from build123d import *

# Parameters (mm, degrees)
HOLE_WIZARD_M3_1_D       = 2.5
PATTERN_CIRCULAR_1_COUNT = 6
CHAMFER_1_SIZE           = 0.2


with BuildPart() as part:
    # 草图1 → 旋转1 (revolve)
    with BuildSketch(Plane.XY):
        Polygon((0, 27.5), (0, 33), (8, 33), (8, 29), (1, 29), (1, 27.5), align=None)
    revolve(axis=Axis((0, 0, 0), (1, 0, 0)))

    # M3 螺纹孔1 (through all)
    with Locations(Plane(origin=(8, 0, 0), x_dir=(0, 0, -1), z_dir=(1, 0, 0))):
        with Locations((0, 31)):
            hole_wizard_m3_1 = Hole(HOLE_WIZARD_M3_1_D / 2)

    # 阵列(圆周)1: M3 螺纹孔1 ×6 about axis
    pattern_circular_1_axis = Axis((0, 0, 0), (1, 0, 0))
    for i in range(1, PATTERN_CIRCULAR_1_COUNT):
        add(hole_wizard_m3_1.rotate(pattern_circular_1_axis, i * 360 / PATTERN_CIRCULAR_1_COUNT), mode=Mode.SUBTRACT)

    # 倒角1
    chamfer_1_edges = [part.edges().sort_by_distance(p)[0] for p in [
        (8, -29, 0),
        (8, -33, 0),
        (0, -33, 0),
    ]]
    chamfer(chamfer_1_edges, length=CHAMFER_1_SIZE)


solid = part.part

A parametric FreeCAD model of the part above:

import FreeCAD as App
import Part
import Sketcher
Q = App.Units.Quantity


def edges_at(feature, points):
    """Names of the edges that pass closest to the given points."""
    edges = feature.Shape.Edges
    near = lambda p: min(range(len(edges)), key=lambda i: edges[i].distToShape(Part.Vertex(*p))[0])
    return sorted({f"Edge{near(p) + 1}" for p in points})


def add_polygon(sketch, points):
    """Adds a closed chain of lines whose ends are joined by coincident constraints."""
    first, n = sketch.GeometryCount, len(points)
    for a, b in zip(points, points[1:] + points[:1]):
        sketch.addGeometry(Part.LineSegment(App.Vector(*a, 0), App.Vector(*b, 0)), False)
    for i in range(n):
        sketch.addConstraint(Sketcher.Constraint("Coincident", first + i, 2, first + (i + 1) % n, 1))

doc = App.newDocument("Part")
params = doc.addObject("Spreadsheet::Sheet", "Params")
for row, (alias, value) in enumerate([
    ("sketch1_width", "1 mm"),
    ("sketch1_width2", "7 mm"),
    ("sketch1_height", "4 mm"),
    ("sketch1_height2", "5.5 mm"),
    ("revolution_angle", "360 deg"),
    ("sketch2_diameter", "2.5 mm"),
    ("hole_diameter", "2.5 mm"),
    ("chamfer_size", "0.2 mm"),
], start=1):
    params.set(f"A{row}", alias)
    params.set(f"B{row}", "=" + value)
    params.setAlias(f"B{row}", alias)

body = doc.addObject("PartDesign::Body", "Body")

sketch1 = body.newObject("Sketcher::SketchObject", "Sketch")
sketch1.AttachmentSupport = (doc.getObject("XY_Plane"), [""])
sketch1.MapMode = "FlatFace"
add_polygon(sketch1, [(0, 33), (0, 27.5), (1, 27.5), (1, 29), (8, 29), (8, 33)])
sketch1.addConstraint([
    Sketcher.Constraint("Vertical", 0),
    Sketcher.Constraint("Horizontal", 1),
    Sketcher.Constraint("Vertical", 2),
    Sketcher.Constraint("Horizontal", 3),
    Sketcher.Constraint("Vertical", 4),
    Sketcher.Constraint("Horizontal", 5),
    Sketcher.Constraint("PointOnObject", 0, 2, -2),
    Sketcher.Constraint("DistanceX", 1, 1, 1, 2, Q("1 mm")),
    Sketcher.Constraint("DistanceX", 3, 1, 3, 2, Q("7 mm")),
    Sketcher.Constraint("DistanceY", 4, 1, 4, 2, Q("4 mm")),
    Sketcher.Constraint("DistanceY", 0, 2, 0, 1, Q("5.5 mm")),
    Sketcher.Constraint("DistanceY", -1, 1, 2, 2, Q("29 mm")),
])
sketch1.setExpression("Constraints[13]", "Params.sketch1_width")
sketch1.setExpression("Constraints[14]", "Params.sketch1_width2")
sketch1.setExpression("Constraints[15]", "Params.sketch1_height")
sketch1.setExpression("Constraints[16]", "Params.sketch1_height2")
revolution = body.newObject("PartDesign::Revolution", "Revolution")
revolution.Profile = sketch1
revolution.ReferenceAxis = (sketch1, ["H_Axis"])
revolution.setExpression("Angle", "Params.revolution_angle")

sketch2 = body.newObject("Sketcher::SketchObject", "Sketch001")
sketch2.AttachmentSupport = (doc.getObject("YZ_Plane"), [""])
sketch2.MapMode = "FlatFace"
sketch2.AttachmentOffset = App.Placement(App.Vector(0, 0, 8), App.Rotation())
sketch2.addGeometry(Part.Circle(App.Vector(31, 0, 0), App.Vector(0, 0, 1), 1.2), False)
sketch2.addConstraint([
    Sketcher.Constraint("PointOnObject", 0, 3, -1),
    Sketcher.Constraint("Diameter", 0, Q("2.5 mm")),
    Sketcher.Constraint("DistanceX", -1, 1, 0, 3, Q("31 mm")),
])
sketch2.setExpression("Constraints[1]", "Params.sketch2_diameter")
doc.recompute()
hole = body.newObject("PartDesign::Hole", "Hole")
hole.Profile = sketch2
hole.ThreadType = "None"
hole.setExpression("Diameter", "Params.hole_diameter")
hole.DepthType = "ThroughAll"
doc.recompute()

polarpattern = body.newObject("PartDesign::PolarPattern", "PolarPattern")
polarpattern.Originals = [hole]
polarpattern.Axis = (doc.getObject("X_Axis"), [""])
polarpattern.Angle = 360
polarpattern.Occurrences = 6
body.Tip = polarpattern
doc.recompute()

chamfer = body.newObject("PartDesign::Chamfer", "Chamfer")
chamfer.Base = (polarpattern, edges_at(polarpattern, [(8, -29, 0), (8, -33, 0), (0, -33, 0)]))
chamfer.setExpression("Size", "Params.chamfer_size")

doc.recompute()
